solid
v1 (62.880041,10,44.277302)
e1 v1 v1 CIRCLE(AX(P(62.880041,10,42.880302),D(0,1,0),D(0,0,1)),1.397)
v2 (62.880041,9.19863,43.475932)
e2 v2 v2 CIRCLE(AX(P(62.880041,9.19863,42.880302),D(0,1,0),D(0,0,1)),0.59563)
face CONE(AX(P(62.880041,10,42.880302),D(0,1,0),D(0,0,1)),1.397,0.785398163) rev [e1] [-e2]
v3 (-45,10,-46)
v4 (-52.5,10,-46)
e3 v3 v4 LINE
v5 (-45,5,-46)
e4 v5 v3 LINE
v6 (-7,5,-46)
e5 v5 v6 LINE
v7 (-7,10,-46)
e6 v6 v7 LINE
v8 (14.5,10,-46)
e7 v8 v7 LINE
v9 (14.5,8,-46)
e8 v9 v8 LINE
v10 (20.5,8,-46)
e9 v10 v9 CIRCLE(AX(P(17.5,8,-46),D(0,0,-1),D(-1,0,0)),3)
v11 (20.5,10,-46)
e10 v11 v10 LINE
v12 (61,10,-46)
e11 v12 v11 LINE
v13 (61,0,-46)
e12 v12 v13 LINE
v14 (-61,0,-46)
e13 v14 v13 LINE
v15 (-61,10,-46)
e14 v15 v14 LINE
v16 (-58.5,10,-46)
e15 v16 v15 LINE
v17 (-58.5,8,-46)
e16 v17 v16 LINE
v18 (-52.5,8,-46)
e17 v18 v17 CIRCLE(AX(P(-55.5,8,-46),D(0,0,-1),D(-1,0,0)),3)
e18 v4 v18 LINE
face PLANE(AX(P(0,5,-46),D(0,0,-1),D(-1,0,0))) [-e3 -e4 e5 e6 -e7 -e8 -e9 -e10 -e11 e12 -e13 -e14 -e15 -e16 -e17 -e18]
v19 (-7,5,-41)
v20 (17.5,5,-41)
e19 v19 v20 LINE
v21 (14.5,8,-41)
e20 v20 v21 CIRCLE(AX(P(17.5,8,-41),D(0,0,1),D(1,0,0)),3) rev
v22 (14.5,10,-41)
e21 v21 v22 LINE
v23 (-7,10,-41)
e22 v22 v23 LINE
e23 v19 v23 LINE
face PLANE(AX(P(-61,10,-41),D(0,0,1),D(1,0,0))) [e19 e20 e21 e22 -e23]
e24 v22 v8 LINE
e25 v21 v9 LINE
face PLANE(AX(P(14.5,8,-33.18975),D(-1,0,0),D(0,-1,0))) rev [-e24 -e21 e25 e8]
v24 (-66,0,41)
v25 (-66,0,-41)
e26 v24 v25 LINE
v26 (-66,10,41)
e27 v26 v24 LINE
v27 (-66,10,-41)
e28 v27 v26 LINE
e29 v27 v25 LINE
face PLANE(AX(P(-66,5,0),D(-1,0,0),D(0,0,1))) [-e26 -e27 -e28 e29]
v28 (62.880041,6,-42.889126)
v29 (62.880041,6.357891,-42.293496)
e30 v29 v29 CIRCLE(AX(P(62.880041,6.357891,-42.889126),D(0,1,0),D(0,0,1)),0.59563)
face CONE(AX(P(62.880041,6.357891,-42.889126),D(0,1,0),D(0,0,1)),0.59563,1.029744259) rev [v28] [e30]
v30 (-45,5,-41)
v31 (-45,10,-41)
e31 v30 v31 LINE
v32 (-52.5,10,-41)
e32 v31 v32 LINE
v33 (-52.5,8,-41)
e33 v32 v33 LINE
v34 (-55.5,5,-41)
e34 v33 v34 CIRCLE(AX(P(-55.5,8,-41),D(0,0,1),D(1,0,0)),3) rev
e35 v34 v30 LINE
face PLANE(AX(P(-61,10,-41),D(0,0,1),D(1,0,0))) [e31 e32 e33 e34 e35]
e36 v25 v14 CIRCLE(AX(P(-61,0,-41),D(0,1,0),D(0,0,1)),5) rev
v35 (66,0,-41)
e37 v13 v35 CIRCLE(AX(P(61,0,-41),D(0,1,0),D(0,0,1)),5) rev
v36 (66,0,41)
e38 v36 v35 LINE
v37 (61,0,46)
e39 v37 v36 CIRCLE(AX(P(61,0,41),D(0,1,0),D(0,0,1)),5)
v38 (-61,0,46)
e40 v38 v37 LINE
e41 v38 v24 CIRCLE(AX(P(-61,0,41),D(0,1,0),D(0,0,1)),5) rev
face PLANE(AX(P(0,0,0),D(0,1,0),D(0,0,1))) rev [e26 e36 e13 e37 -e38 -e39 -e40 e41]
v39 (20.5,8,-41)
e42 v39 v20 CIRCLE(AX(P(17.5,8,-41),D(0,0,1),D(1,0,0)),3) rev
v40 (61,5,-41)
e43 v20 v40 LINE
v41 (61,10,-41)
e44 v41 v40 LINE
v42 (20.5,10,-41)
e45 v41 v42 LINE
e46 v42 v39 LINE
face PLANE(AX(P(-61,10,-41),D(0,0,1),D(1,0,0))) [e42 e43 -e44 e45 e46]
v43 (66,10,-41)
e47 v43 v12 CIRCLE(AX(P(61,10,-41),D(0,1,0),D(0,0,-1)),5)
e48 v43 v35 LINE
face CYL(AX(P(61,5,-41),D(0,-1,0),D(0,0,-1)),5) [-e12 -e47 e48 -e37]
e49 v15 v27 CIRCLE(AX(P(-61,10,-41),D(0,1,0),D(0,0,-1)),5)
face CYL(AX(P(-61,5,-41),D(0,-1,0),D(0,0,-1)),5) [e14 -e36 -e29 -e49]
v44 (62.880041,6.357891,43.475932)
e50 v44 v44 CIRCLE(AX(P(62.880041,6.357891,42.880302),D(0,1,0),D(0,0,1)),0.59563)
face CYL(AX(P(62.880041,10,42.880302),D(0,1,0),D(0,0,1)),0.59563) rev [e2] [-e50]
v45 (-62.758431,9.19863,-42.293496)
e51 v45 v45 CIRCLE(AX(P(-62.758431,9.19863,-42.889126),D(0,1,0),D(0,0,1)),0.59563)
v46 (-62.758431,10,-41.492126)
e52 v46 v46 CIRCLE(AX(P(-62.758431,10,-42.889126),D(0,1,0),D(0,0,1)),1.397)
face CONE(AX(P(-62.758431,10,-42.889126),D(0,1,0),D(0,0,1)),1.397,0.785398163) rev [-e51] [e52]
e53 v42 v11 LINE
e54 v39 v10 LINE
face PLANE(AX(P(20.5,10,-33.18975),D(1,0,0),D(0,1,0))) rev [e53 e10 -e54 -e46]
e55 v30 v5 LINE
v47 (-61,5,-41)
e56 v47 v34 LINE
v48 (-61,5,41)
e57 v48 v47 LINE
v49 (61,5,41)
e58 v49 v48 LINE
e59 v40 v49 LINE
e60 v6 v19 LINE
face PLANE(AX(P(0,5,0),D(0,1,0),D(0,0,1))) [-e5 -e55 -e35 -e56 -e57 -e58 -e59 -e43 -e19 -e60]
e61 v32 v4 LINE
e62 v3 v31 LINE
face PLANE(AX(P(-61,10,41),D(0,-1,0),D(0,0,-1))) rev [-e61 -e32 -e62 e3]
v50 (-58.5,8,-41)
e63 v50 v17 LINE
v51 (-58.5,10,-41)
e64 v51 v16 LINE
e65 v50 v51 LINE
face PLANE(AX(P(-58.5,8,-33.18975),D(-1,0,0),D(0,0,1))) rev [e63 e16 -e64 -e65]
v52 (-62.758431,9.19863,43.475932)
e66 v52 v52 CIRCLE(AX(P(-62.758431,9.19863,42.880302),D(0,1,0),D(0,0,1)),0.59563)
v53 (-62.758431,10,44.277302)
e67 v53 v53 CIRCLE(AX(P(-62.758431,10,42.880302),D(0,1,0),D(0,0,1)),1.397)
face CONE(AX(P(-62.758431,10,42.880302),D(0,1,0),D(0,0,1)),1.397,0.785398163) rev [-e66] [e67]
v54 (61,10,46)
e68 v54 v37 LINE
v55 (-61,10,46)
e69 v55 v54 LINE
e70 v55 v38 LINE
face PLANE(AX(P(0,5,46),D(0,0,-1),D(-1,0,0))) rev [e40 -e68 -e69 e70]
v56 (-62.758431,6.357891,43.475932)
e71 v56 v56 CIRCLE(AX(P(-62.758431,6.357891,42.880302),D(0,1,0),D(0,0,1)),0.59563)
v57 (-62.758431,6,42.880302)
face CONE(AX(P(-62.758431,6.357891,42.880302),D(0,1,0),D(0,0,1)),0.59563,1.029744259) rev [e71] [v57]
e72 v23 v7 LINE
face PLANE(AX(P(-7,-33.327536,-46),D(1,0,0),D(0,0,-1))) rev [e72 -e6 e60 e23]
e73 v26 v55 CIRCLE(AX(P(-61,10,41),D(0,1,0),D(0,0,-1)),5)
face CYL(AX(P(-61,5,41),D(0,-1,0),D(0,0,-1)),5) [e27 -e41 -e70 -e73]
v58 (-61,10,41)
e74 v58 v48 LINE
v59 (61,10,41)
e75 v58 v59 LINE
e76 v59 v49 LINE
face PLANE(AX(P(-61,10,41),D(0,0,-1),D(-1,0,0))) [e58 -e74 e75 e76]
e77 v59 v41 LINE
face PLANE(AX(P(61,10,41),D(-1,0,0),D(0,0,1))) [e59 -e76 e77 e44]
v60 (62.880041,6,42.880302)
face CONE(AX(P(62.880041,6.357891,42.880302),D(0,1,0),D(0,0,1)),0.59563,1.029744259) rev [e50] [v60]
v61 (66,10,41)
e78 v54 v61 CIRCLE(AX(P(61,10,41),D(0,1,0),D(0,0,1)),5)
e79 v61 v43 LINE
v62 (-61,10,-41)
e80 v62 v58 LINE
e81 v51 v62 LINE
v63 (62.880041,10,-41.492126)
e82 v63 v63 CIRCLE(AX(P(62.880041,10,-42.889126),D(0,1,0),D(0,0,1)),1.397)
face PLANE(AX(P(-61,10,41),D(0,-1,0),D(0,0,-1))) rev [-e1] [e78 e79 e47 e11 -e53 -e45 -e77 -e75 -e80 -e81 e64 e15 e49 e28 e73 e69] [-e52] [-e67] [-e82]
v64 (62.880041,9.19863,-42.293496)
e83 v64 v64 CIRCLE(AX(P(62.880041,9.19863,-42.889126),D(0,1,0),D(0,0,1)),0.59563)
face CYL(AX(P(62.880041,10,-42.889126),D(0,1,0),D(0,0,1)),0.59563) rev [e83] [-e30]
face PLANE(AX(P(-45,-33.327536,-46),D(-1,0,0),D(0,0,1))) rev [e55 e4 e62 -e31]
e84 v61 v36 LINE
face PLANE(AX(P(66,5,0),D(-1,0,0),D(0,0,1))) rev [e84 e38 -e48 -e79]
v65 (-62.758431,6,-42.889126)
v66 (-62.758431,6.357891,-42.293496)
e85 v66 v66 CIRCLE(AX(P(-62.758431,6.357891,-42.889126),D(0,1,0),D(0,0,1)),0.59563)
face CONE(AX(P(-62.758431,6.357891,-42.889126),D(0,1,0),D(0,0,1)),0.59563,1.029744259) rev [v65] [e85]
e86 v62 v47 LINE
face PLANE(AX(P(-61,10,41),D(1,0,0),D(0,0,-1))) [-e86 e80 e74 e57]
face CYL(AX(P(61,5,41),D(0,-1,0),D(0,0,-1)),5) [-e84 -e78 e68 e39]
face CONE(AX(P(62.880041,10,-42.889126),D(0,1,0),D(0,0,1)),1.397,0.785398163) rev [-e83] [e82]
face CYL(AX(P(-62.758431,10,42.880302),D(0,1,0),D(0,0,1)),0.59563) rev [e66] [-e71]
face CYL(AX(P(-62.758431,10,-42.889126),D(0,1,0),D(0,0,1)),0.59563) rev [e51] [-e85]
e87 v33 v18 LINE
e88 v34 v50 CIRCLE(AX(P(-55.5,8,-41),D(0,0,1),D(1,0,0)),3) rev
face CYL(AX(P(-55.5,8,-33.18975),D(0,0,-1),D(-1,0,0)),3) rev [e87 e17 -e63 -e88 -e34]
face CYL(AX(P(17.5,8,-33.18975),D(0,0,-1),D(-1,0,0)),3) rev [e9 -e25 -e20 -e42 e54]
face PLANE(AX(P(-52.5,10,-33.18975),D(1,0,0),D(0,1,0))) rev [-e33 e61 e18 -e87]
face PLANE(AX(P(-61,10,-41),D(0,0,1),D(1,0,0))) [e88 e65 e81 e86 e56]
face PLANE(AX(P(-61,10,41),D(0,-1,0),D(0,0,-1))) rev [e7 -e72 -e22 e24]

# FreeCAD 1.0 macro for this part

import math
import FreeCAD as App
import Part
import Sketcher

V = App.Vector
Q = App.Units.Quantity

doc = App.newDocument("Part")
body = doc.addObject("PartDesign::Body", "Body")

sketch1 = body.newObject("Sketcher::SketchObject", "Sketch")
sketch1.AttachmentSupport = (doc.getObject("XZ_Plane"), [""])
sketch1.MapMode = "FlatFace"
sketch1.addGeometry([
    Part.ArcOfCircle(Part.Circle(V(-61, -41, 0), V(0, 0, 1), 5), math.radians(180), math.radians(270)),
    Part.LineSegment(V(-66, -41, 0), V(-66, 41, 0)),
    Part.ArcOfCircle(Part.Circle(V(-61, 41, 0), V(0, 0, 1), 5), math.radians(90), math.radians(180)),
    Part.LineSegment(V(-61, 46, 0), V(61, 46, 0)),
    Part.ArcOfCircle(Part.Circle(V(61, 41, 0), V(0, 0, 1), 5), math.radians(0), math.radians(90)),
    Part.LineSegment(V(66, 41, 0), V(66, -41, 0)),
    Part.ArcOfCircle(Part.Circle(V(61, -41, 0), V(0, 0, 1), 5), math.radians(-90), math.radians(0)),
    Part.LineSegment(V(61, -46, 0), V(-61, -46, 0)),
], False)
sketch1.addConstraint([
    Sketcher.Constraint("Tangent", 0, 1, 1, 1),
    Sketcher.Constraint("Tangent", 1, 2, 2, 2),
    Sketcher.Constraint("Tangent", 2, 1, 3, 1),
    Sketcher.Constraint("Tangent", 3, 2, 4, 2),
    Sketcher.Constraint("Tangent", 4, 1, 5, 1),
    Sketcher.Constraint("Tangent", 5, 2, 6, 2),
    Sketcher.Constraint("Tangent", 6, 1, 7, 1),
    Sketcher.Constraint("Tangent", 7, 2, 0, 2),
    Sketcher.Constraint("Vertical", 1),
    Sketcher.Constraint("Horizontal", 3),
    Sketcher.Constraint("Vertical", 5),
    Sketcher.Constraint("Horizontal", 7),
    Sketcher.Constraint("Equal", 0, 2),
    Sketcher.Constraint("Equal", 2, 4),
    Sketcher.Constraint("Equal", 4, 6),
    Sketcher.Constraint("Symmetric", 0, 3, 4, 3, -1, 1),
    Sketcher.Constraint("Radius", 0, Q("5 mm")),
    Sketcher.Constraint("DistanceX", 3, 1, 3, 2, Q("122 mm")),
    Sketcher.Constraint("DistanceY", 1, 1, 1, 2, Q("82 mm")),
])
pad1 = body.newObject("PartDesign::Pad", "Pad")
pad1.Profile = sketch1
pad1.Length = 5
pad1.Reversed = True

sketch2 = body.newObject("Sketcher::SketchObject", "Sketch001")
sketch2.AttachmentSupport = (doc.getObject("XZ_Plane"), [""])
sketch2.MapMode = "FlatFace"
sketch2.addGeometry([
    Part.LineSegment(V(-61, 46, 0), V(61, 46, 0)),
    Part.ArcOfCircle(Part.Circle(V(61, 41, 0), V(0, 0, 1), 5), math.radians(0), math.radians(90)),
    Part.LineSegment(V(66, 41, 0), V(66, -41, 0)),
    Part.ArcOfCircle(Part.Circle(V(61, -41, 0), V(0, 0, 1), 5), math.radians(-90), math.radians(0)),
    Part.LineSegment(V(61, -46, 0), V(-61, -46, 0)),
    Part.ArcOfCircle(Part.Circle(V(-61, -41, 0), V(0, 0, 1), 5), math.radians(180), math.radians(270)),
    Part.LineSegment(V(-66, -41, 0), V(-66, 41, 0)),
    Part.ArcOfCircle(Part.Circle(V(-61, 41, 0), V(0, 0, 1), 5), math.radians(90), math.radians(180)),
    Part.LineSegment(V(61, 41, 0), V(-61, 41, 0)),
    Part.LineSegment(V(-61, 41, 0), V(-61, -41, 0)),
    Part.LineSegment(V(-61, -41, 0), V(61, -41, 0)),
    Part.LineSegment(V(61, -41, 0), V(61, 41, 0)),
], False)
sketch2.addConstraint([
    Sketcher.Constraint("Tangent", 0, 2, 1, 2),
    Sketcher.Constraint("Tangent", 1, 1, 2, 1),
    Sketcher.Constraint("Tangent", 2, 2, 3, 2),
    Sketcher.Constraint("Tangent", 3, 1, 4, 1),
    Sketcher.Constraint("Tangent", 4, 2, 5, 2),
    Sketcher.Constraint("Tangent", 5, 1, 6, 1),
    Sketcher.Constraint("Tangent", 6, 2, 7, 2),
    Sketcher.Constraint("Tangent", 7, 1, 0, 1),
    Sketcher.Constraint("Coincident", 8, 2, 9, 1),
    Sketcher.Constraint("Coincident", 9, 2, 10, 1),
    Sketcher.Constraint("Coincident", 10, 2, 11, 1),
    Sketcher.Constraint("Coincident", 11, 2, 8, 1),
    Sketcher.Constraint("Horizontal", 0),
    Sketcher.Constraint("Vertical", 2),
    Sketcher.Constraint("Horizontal", 4),
    Sketcher.Constraint("Vertical", 6),
    Sketcher.Constraint("Horizontal", 8),
    Sketcher.Constraint("Vertical", 9),
    Sketcher.Constraint("Horizontal", 10),
    Sketcher.Constraint("Vertical", 11),
    Sketcher.Constraint("Coincident", 8, 2, 7, 3),
    Sketcher.Constraint("Coincident", 9, 2, 5, 3),
    Sketcher.Constraint("Coincident", 10, 2, 3, 3),
    Sketcher.Constraint("Equal", 1, 3),
    Sketcher.Constraint("Symmetric", 1, 3, 5, 3, -1, 1),
    Sketcher.Constraint("Radius", 1, Q("5 mm")),
    Sketcher.Constraint("DistanceX", 0, 1, 0, 2, Q("122 mm")),
    Sketcher.Constraint("DistanceY", 2, 2, 2, 1, Q("82 mm")),
])
pad2 = body.newObject("PartDesign::Pad", "Pad001")
pad2.Profile = sketch2
pad2.Length = 10
pad2.Reversed = True

sketch3 = body.newObject("Sketcher::SketchObject", "Sketch002")
sketch3.AttachmentSupport = (doc.getObject("XZ_Plane"), [""])
sketch3.MapMode = "FlatFace"
sketch3.AttachmentOffset = App.Placement(V(0, 0, -10), App.Rotation())
sketch3.addGeometry([
    Part.Circle(V(62.9, -42.9, 0), V(0, 0, 1), 0.6),
    Part.Circle(V(62.9, 42.9, 0), V(0, 0, 1), 0.6),
    Part.Circle(V(-62.8, -42.9, 0), V(0, 0, 1), 0.6),
    Part.Circle(V(-62.8, 42.9, 0), V(0, 0, 1), 0.6),
], False)
sketch3.addConstraint([
    Sketcher.Constraint("Equal", 0, 1),
    Sketcher.Constraint("Equal", 1, 2),
    Sketcher.Constraint("Equal", 2, 3),
    Sketcher.Constraint("Horizontal", 0, 3, 2, 3),
    Sketcher.Constraint("Horizontal", 1, 3, 3, 3),
    Sketcher.Constraint("Vertical", 0, 3, 1, 3),
    Sketcher.Constraint("Vertical", 2, 3, 3, 3),
    Sketcher.Constraint("Diameter", 0, Q("1.19126 mm")),
    Sketcher.Constraint("DistanceX", -1, 1, 0, 3, Q("62.880041 mm")),
    Sketcher.Constraint("DistanceX", 2, 3, -1, 1, Q("62.758431 mm")),
    Sketcher.Constraint("DistanceY", 0, 3, 1, 3, Q("85.769428 mm")),
    Sketcher.Constraint("DistanceY", 0, 3, -1, 1, Q("42.889126 mm")),
])
doc.recompute()
hole = body.newObject("PartDesign::Hole", "Hole")
hole.Profile = sketch3
hole.ThreadType = "None"
hole.Diameter = 1.19126
hole.DepthType = "Dimension"
hole.Depth = 3.642109
hole.DrillPoint = "Angled"
hole.DrillPointAngle = 118
hole.HoleCutType = "Countersink"
hole.HoleCutDiameter = 2.794
hole.HoleCutCountersinkAngle = 90
hole.Reversed = True

sketch4 = body.newObject("Sketcher::SketchObject", "Sketch003")
sketch4.AttachmentSupport = (doc.getObject("XZ_Plane"), [""])
sketch4.MapMode = "FlatFace"
sketch4.AttachmentOffset = App.Placement(V(0, 0, -10), App.Rotation())
sketch4.addGeometry([
    Part.LineSegment(V(-45, -46, 0), V(-45, -41, 0)),
    Part.LineSegment(V(-45, -41, 0), V(-7, -41, 0)),
    Part.LineSegment(V(-7, -41, 0), V(-7, -46, 0)),
    Part.LineSegment(V(-7, -46, 0), V(-45, -46, 0)),
], False)
sketch4.addConstraint([
    Sketcher.Constraint("Coincident", 0, 2, 1, 1),
    Sketcher.Constraint("Coincident", 1, 2, 2, 1),
    Sketcher.Constraint("Coincident", 2, 2, 3, 1),
    Sketcher.Constraint("Coincident", 3, 2, 0, 1),
    Sketcher.Constraint("Vertical", 0),
    Sketcher.Constraint("Horizontal", 1),
    Sketcher.Constraint("Vertical", 2),
    Sketcher.Constraint("Horizontal", 3),
    Sketcher.Constraint("DistanceX", 1, 1, 1, 2, Q("38 mm")),
    Sketcher.Constraint("DistanceY", 0, 1, 0, 2, Q("5 mm")),
    Sketcher.Constraint("DistanceX", 0, 2, -1, 1, Q("45 mm")),
    Sketcher.Constraint("DistanceY", 0, 2, -1, 1, Q("41 mm")),
])
pocket1 = body.newObject("PartDesign::Pocket", "Pocket")
pocket1.Profile = sketch4
pocket1.Length = 5
pocket1.Reversed = True

sketch5 = body.newObject("Sketcher::SketchObject", "Sketch004")
sketch5.AttachmentSupport = (doc.getObject("XY_Plane"), [""])
sketch5.MapMode = "FlatFace"
sketch5.AttachmentOffset = App.Placement(V(0, 0, -46), App.Rotation())
sketch5.addGeometry([
    Part.LineSegment(V(20.5, 10, 0), V(20.5, 8, 0)),
    Part.ArcOfCircle(Part.Circle(V(17.5, 8, 0), V(0, 0, 1), 3), math.radians(180), math.radians(360)),
    Part.LineSegment(V(14.5, 8, 0), V(14.5, 10, 0)),
    Part.LineSegment(V(14.5, 10, 0), V(20.5, 10, 0)),
], False)
sketch5.addConstraint([
    Sketcher.Constraint("Tangent", 0, 2, 1, 2),
    Sketcher.Constraint("Tangent", 1, 1, 2, 1),
    Sketcher.Constraint("Coincident", 2, 2, 3, 1),
    Sketcher.Constraint("Coincident", 3, 2, 0, 1),
    Sketcher.Constraint("Vertical", 0),
    Sketcher.Constraint("Vertical", 2),
    Sketcher.Constraint("Horizontal", 3),
    Sketcher.Constraint("Radius", 1, Q("3 mm")),
    Sketcher.Constraint("DistanceY", 0, 2, 0, 1, Q("2 mm")),
    Sketcher.Constraint("DistanceY", -1, 1, 1, 3, Q("8 mm")),
    Sketcher.Constraint("DistanceX", -1, 1, 1, 3, Q("17.5 mm")),
])
pocket2 = body.newObject("PartDesign::Pocket", "Pocket001")
pocket2.Profile = sketch5
pocket2.Length = 5
pocket2.Reversed = True

sketch6 = body.newObject("Sketcher::SketchObject", "Sketch005")
sketch6.AttachmentSupport = (doc.getObject("XY_Plane"), [""])
sketch6.MapMode = "FlatFace"
sketch6.AttachmentOffset = App.Placement(V(0, 0, -46), App.Rotation())
sketch6.addGeometry([
    Part.LineSegment(V(-52.5, 10, 0), V(-52.5, 8, 0)),
    Part.ArcOfCircle(Part.Circle(V(-55.5, 8, 0), V(0, 0, 1), 3), math.radians(180), math.radians(360)),
    Part.LineSegment(V(-58.5, 8, 0), V(-58.5, 10, 0)),
    Part.LineSegment(V(-58.5, 10, 0), V(-52.5, 10, 0)),
], False)
sketch6.addConstraint([
    Sketcher.Constraint("Tangent", 0, 2, 1, 2),
    Sketcher.Constraint("Tangent", 1, 1, 2, 1),
    Sketcher.Constraint("Coincident", 2, 2, 3, 1),
    Sketcher.Constraint("Coincident", 3, 2, 0, 1),
    Sketcher.Constraint("Vertical", 0),
    Sketcher.Constraint("Vertical", 2),
    Sketcher.Constraint("Horizontal", 3),
    Sketcher.Constraint("Radius", 1, Q("3 mm")),
    Sketcher.Constraint("DistanceY", 0, 2, 0, 1, Q("2 mm")),
    Sketcher.Constraint("DistanceY", -1, 1, 1, 3, Q("8 mm")),
    Sketcher.Constraint("DistanceX", 1, 3, -1, 1, Q("55.5 mm")),
])
pocket3 = body.newObject("PartDesign::Pocket", "Pocket002")
pocket3.Profile = sketch6
pocket3.Length = 5
pocket3.Reversed = True

doc.recompute()
